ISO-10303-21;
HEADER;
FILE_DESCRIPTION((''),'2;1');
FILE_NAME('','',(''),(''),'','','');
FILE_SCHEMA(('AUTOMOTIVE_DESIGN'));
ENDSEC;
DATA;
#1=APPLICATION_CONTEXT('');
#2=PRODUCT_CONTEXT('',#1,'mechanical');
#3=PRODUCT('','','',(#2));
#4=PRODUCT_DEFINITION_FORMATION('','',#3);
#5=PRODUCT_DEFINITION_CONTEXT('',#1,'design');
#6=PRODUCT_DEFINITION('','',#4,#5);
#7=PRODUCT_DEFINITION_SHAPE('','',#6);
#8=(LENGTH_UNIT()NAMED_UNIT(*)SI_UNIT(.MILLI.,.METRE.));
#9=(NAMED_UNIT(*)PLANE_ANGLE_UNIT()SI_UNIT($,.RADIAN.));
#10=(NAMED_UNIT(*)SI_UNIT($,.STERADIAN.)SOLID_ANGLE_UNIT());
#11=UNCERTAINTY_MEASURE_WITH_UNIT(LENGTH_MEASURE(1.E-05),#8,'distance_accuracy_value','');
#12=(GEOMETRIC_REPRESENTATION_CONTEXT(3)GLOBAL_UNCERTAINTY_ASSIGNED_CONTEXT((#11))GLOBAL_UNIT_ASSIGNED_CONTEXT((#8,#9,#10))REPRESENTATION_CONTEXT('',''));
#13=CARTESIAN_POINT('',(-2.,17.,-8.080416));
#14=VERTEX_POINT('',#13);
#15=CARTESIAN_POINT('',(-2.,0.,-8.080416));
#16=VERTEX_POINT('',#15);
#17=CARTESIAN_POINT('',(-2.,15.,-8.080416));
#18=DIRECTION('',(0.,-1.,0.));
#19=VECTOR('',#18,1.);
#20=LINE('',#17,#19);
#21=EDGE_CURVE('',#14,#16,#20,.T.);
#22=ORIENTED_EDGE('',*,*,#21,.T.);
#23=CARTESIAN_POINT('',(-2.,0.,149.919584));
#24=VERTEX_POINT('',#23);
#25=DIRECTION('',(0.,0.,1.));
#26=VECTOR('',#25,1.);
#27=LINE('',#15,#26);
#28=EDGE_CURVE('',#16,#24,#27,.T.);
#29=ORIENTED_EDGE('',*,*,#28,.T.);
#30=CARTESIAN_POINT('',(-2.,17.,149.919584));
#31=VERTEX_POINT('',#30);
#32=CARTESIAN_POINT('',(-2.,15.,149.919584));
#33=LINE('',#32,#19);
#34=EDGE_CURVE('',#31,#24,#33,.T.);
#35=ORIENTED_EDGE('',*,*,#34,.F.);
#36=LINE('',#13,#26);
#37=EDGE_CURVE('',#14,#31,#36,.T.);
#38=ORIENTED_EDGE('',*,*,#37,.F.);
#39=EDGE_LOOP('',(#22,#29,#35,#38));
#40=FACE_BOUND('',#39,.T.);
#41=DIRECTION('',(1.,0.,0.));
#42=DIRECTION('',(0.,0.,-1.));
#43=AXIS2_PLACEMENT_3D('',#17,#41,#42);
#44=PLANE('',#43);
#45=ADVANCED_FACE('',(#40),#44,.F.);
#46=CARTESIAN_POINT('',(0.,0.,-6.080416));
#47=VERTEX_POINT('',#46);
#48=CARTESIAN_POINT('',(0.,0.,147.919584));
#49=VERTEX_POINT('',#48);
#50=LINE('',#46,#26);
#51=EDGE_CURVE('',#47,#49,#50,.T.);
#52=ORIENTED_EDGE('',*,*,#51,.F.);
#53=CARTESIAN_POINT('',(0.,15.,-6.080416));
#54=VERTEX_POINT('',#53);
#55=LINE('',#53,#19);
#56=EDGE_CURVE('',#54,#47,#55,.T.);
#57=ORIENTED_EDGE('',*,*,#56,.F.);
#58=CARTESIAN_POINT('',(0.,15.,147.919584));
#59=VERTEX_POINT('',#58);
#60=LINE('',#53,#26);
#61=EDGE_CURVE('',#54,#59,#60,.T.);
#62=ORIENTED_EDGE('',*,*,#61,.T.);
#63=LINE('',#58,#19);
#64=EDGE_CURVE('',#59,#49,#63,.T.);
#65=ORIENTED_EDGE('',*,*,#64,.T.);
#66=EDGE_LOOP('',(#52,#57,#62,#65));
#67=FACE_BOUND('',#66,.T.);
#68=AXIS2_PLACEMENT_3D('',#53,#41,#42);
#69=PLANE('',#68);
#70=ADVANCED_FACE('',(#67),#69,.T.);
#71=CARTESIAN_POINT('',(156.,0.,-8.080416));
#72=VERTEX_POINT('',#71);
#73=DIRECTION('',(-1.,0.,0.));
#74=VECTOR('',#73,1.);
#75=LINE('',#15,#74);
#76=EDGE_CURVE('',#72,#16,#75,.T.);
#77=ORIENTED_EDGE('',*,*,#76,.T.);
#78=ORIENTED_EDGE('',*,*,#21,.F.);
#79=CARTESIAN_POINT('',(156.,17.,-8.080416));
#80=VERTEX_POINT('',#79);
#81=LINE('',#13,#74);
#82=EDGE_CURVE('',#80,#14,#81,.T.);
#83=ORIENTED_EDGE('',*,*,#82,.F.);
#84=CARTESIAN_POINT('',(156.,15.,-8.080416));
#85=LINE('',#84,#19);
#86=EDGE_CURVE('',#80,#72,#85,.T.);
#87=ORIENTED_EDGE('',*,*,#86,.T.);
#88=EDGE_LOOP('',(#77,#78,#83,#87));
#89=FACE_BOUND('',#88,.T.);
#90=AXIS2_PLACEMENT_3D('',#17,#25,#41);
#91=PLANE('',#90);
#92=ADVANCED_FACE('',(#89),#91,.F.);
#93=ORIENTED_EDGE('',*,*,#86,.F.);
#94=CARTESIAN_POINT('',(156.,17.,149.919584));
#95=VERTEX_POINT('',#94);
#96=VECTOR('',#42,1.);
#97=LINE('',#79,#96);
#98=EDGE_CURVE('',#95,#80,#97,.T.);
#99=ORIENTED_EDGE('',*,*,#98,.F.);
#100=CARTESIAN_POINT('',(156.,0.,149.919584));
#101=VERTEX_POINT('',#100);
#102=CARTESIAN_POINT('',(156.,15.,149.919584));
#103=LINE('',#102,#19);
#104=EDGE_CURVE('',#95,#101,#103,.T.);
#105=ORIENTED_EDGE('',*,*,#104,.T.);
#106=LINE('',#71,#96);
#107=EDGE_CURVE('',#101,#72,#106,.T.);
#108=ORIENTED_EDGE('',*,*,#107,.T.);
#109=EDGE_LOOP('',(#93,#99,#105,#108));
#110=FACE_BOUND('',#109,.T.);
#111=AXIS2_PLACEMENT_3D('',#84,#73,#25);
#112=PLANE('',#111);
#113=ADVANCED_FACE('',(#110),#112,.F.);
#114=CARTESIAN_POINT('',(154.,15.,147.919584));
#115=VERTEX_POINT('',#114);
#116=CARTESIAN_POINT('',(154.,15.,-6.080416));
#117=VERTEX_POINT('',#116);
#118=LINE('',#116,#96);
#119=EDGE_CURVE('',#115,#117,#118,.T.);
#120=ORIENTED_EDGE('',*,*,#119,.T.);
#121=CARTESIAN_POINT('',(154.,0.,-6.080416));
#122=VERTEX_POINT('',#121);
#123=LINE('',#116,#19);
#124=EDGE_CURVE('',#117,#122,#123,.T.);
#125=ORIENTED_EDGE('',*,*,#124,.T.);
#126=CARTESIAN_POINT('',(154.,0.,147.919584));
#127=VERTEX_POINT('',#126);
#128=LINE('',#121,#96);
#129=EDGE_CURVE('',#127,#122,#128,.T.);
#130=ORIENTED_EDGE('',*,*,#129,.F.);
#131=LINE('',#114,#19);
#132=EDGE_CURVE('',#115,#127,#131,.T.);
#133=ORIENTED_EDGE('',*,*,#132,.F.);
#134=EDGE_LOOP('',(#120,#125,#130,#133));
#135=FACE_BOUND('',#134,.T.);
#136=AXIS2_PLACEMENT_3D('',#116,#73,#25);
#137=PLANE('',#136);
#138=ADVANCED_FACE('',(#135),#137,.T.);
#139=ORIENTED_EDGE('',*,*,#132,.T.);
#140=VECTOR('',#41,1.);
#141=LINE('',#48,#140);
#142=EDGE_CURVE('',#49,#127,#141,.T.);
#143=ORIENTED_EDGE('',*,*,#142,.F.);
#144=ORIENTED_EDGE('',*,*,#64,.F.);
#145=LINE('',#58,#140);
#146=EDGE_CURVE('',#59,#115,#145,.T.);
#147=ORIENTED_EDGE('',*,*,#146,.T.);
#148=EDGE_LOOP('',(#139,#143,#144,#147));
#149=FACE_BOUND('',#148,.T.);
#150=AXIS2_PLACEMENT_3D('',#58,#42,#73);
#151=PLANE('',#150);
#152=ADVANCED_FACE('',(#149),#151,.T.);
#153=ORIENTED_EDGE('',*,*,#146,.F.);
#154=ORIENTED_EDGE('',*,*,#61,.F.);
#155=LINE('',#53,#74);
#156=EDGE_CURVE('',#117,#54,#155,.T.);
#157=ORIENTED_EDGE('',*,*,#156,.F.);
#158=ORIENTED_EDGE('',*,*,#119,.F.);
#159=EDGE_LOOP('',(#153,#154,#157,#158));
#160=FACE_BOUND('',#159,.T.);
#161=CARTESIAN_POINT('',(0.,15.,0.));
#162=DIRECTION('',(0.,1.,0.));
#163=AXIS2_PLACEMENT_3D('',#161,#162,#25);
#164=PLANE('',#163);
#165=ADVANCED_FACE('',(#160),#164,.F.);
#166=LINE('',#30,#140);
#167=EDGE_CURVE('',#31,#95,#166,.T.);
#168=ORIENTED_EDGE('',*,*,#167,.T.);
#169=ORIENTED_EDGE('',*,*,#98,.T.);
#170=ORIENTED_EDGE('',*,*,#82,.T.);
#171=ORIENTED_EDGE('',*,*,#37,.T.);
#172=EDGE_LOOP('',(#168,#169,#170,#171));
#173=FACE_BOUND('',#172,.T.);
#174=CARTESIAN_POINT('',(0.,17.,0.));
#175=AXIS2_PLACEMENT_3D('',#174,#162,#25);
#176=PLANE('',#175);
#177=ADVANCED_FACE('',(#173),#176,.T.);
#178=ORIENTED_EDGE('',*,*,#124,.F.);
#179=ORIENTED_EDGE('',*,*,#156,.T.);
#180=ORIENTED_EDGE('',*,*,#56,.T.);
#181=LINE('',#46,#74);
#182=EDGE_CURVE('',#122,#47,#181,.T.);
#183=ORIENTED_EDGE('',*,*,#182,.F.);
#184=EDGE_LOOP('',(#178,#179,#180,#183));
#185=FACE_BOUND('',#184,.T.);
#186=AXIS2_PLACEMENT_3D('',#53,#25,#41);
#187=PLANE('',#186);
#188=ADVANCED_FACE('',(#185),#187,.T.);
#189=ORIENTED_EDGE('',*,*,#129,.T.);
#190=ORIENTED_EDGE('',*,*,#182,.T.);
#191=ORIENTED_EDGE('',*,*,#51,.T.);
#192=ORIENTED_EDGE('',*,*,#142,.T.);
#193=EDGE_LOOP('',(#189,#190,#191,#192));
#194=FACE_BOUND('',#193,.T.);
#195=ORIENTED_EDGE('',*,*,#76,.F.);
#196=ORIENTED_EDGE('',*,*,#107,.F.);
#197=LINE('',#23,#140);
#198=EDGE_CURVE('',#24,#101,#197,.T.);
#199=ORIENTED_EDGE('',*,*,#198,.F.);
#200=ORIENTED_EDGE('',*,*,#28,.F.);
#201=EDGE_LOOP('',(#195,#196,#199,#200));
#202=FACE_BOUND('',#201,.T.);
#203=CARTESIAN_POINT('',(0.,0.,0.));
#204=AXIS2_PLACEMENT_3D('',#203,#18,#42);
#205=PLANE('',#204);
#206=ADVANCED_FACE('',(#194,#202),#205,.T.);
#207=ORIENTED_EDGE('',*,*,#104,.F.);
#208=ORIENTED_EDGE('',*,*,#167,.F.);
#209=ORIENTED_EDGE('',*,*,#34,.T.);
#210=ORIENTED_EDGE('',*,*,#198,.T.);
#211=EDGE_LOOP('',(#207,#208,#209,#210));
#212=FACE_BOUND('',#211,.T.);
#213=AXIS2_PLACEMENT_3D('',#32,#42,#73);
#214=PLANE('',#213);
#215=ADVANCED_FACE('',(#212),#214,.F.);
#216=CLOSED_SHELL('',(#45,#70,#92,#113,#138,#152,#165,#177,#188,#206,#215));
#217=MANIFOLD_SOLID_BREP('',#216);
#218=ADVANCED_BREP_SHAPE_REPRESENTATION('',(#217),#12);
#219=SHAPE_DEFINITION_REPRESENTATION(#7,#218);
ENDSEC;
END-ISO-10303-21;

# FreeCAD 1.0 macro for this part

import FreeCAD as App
import Part
import Sketcher
Q = App.Units.Quantity

doc = App.newDocument("Part")
body = doc.addObject("PartDesign::Body", "Body")

sketch1 = body.newObject("Sketcher::SketchObject", "Sketch")
sketch1.AttachmentSupport = (doc.getObject("XZ_Plane"), [""])
sketch1.MapMode = "FlatFace"
sketch1.addGeometry(Part.LineSegment(App.Vector(-2, -8, 0), App.Vector(-2, 150, 0)), False)
sketch1.addGeometry(Part.LineSegment(App.Vector(-2, 150, 0), App.Vector(156, 150, 0)), False)
sketch1.addGeometry(Part.LineSegment(App.Vector(156, 150, 0), App.Vector(156, -8, 0)), False)
sketch1.addGeometry(Part.LineSegment(App.Vector(156, -8, 0), App.Vector(-2, -8, 0)), False)
sketch1.addGeometry(Part.LineSegment(App.Vector(154, 148, 0), App.Vector(0, 148, 0)), False)
sketch1.addGeometry(Part.LineSegment(App.Vector(0, 148, 0), App.Vector(0, -6, 0)), False)
sketch1.addGeometry(Part.LineSegment(App.Vector(0, -6, 0), App.Vector(154, -6, 0)), False)
sketch1.addGeometry(Part.LineSegment(App.Vector(154, -6, 0), App.Vector(154, 148, 0)), False)
sketch1.addConstraint(Sketcher.Constraint("Coincident", 0, 2, 1, 1))
sketch1.addConstraint(Sketcher.Constraint("Coincident", 1, 2, 2, 1))
sketch1.addConstraint(Sketcher.Constraint("Coincident", 2, 2, 3, 1))
sketch1.addConstraint(Sketcher.Constraint("Coincident", 3, 2, 0, 1))
sketch1.addConstraint(Sketcher.Constraint("Coincident", 4, 2, 5, 1))
sketch1.addConstraint(Sketcher.Constraint("Coincident", 5, 2, 6, 1))
sketch1.addConstraint(Sketcher.Constraint("Coincident", 6, 2, 7, 1))
sketch1.addConstraint(Sketcher.Constraint("Coincident", 7, 2, 4, 1))
sketch1.addConstraint(Sketcher.Constraint("Vertical", 0))
sketch1.addConstraint(Sketcher.Constraint("Horizontal", 1))
sketch1.addConstraint(Sketcher.Constraint("Vertical", 2))
sketch1.addConstraint(Sketcher.Constraint("Horizontal", 3))
sketch1.addConstraint(Sketcher.Constraint("Horizontal", 4))
sketch1.addConstraint(Sketcher.Constraint("Vertical", 5))
sketch1.addConstraint(Sketcher.Constraint("Horizontal", 6))
sketch1.addConstraint(Sketcher.Constraint("Vertical", 7))
sketch1.addConstraint(Sketcher.Constraint("PointOnObject", 4, 2, -2))
sketch1.addConstraint(Sketcher.Constraint("Equal", 3, 0))
sketch1.addConstraint(Sketcher.Constraint("Equal", 6, 5))
sketch1.addConstraint(Sketcher.Constraint("DistanceX", 1, 1, 1, 2, Q("158 mm")))
sketch1.addConstraint(Sketcher.Constraint("DistanceX", 4, 2, 4, 1, Q("154 mm")))
sketch1.addConstraint(Sketcher.Constraint("DistanceX", 0, 2, -1, 1, Q("2 mm")))
sketch1.addConstraint(Sketcher.Constraint("DistanceY", 4, 2, 0, 2, Q("2 mm")))
sketch1.addConstraint(Sketcher.Constraint("DistanceY", -1, 1, 0, 2, Q("149.919584 mm")))
pad1 = body.newObject("PartDesign::Pad", "Pad")
pad1.Profile = sketch1
pad1.Length = 15
pad1.Reversed = True

sketch2 = body.newObject("Sketcher::SketchObject", "Sketch001")
sketch2.AttachmentSupport = (doc.getObject("XZ_Plane"), [""])
sketch2.MapMode = "FlatFace"
sketch2.AttachmentOffset = App.Placement(App.Vector(0, 0, -15), App.Rotation())
sketch2.addGeometry(Part.LineSegment(App.Vector(-2, -8, 0), App.Vector(-2, 150, 0)), False)
sketch2.addGeometry(Part.LineSegment(App.Vector(-2, 150, 0), App.Vector(156, 150, 0)), False)
sketch2.addGeometry(Part.LineSegment(App.Vector(156, 150, 0), App.Vector(156, -8, 0)), False)
sketch2.addGeometry(Part.LineSegment(App.Vector(156, -8, 0), App.Vector(-2, -8, 0)), False)
sketch2.addConstraint(Sketcher.Constraint("Coincident", 0, 2, 1, 1))
sketch2.addConstraint(Sketcher.Constraint("Coincident", 1, 2, 2, 1))
sketch2.addConstraint(Sketcher.Constraint("Coincident", 2, 2, 3, 1))
sketch2.addConstraint(Sketcher.Constraint("Coincident", 3, 2, 0, 1))
sketch2.addConstraint(Sketcher.Constraint("Vertical", 0))
sketch2.addConstraint(Sketcher.Constraint("Horizontal", 1))
sketch2.addConstraint(Sketcher.Constraint("Vertical", 2))
sketch2.addConstraint(Sketcher.Constraint("Horizontal", 3))
sketch2.addConstraint(Sketcher.Constraint("Equal", 3, 0))
sketch2.addConstraint(Sketcher.Constraint("DistanceX", 1, 1, 1, 2, Q("158 mm")))
sketch2.addConstraint(Sketcher.Constraint("DistanceX", 0, 2, -1, 1, Q("2 mm")))
sketch2.addConstraint(Sketcher.Constraint("DistanceY", -1, 1, 0, 2, Q("149.919584 mm")))
pad2 = body.newObject("PartDesign::Pad", "Pad001")
pad2.Profile = sketch2
pad2.Length = 2
pad2.Reversed = True

doc.recompute()
